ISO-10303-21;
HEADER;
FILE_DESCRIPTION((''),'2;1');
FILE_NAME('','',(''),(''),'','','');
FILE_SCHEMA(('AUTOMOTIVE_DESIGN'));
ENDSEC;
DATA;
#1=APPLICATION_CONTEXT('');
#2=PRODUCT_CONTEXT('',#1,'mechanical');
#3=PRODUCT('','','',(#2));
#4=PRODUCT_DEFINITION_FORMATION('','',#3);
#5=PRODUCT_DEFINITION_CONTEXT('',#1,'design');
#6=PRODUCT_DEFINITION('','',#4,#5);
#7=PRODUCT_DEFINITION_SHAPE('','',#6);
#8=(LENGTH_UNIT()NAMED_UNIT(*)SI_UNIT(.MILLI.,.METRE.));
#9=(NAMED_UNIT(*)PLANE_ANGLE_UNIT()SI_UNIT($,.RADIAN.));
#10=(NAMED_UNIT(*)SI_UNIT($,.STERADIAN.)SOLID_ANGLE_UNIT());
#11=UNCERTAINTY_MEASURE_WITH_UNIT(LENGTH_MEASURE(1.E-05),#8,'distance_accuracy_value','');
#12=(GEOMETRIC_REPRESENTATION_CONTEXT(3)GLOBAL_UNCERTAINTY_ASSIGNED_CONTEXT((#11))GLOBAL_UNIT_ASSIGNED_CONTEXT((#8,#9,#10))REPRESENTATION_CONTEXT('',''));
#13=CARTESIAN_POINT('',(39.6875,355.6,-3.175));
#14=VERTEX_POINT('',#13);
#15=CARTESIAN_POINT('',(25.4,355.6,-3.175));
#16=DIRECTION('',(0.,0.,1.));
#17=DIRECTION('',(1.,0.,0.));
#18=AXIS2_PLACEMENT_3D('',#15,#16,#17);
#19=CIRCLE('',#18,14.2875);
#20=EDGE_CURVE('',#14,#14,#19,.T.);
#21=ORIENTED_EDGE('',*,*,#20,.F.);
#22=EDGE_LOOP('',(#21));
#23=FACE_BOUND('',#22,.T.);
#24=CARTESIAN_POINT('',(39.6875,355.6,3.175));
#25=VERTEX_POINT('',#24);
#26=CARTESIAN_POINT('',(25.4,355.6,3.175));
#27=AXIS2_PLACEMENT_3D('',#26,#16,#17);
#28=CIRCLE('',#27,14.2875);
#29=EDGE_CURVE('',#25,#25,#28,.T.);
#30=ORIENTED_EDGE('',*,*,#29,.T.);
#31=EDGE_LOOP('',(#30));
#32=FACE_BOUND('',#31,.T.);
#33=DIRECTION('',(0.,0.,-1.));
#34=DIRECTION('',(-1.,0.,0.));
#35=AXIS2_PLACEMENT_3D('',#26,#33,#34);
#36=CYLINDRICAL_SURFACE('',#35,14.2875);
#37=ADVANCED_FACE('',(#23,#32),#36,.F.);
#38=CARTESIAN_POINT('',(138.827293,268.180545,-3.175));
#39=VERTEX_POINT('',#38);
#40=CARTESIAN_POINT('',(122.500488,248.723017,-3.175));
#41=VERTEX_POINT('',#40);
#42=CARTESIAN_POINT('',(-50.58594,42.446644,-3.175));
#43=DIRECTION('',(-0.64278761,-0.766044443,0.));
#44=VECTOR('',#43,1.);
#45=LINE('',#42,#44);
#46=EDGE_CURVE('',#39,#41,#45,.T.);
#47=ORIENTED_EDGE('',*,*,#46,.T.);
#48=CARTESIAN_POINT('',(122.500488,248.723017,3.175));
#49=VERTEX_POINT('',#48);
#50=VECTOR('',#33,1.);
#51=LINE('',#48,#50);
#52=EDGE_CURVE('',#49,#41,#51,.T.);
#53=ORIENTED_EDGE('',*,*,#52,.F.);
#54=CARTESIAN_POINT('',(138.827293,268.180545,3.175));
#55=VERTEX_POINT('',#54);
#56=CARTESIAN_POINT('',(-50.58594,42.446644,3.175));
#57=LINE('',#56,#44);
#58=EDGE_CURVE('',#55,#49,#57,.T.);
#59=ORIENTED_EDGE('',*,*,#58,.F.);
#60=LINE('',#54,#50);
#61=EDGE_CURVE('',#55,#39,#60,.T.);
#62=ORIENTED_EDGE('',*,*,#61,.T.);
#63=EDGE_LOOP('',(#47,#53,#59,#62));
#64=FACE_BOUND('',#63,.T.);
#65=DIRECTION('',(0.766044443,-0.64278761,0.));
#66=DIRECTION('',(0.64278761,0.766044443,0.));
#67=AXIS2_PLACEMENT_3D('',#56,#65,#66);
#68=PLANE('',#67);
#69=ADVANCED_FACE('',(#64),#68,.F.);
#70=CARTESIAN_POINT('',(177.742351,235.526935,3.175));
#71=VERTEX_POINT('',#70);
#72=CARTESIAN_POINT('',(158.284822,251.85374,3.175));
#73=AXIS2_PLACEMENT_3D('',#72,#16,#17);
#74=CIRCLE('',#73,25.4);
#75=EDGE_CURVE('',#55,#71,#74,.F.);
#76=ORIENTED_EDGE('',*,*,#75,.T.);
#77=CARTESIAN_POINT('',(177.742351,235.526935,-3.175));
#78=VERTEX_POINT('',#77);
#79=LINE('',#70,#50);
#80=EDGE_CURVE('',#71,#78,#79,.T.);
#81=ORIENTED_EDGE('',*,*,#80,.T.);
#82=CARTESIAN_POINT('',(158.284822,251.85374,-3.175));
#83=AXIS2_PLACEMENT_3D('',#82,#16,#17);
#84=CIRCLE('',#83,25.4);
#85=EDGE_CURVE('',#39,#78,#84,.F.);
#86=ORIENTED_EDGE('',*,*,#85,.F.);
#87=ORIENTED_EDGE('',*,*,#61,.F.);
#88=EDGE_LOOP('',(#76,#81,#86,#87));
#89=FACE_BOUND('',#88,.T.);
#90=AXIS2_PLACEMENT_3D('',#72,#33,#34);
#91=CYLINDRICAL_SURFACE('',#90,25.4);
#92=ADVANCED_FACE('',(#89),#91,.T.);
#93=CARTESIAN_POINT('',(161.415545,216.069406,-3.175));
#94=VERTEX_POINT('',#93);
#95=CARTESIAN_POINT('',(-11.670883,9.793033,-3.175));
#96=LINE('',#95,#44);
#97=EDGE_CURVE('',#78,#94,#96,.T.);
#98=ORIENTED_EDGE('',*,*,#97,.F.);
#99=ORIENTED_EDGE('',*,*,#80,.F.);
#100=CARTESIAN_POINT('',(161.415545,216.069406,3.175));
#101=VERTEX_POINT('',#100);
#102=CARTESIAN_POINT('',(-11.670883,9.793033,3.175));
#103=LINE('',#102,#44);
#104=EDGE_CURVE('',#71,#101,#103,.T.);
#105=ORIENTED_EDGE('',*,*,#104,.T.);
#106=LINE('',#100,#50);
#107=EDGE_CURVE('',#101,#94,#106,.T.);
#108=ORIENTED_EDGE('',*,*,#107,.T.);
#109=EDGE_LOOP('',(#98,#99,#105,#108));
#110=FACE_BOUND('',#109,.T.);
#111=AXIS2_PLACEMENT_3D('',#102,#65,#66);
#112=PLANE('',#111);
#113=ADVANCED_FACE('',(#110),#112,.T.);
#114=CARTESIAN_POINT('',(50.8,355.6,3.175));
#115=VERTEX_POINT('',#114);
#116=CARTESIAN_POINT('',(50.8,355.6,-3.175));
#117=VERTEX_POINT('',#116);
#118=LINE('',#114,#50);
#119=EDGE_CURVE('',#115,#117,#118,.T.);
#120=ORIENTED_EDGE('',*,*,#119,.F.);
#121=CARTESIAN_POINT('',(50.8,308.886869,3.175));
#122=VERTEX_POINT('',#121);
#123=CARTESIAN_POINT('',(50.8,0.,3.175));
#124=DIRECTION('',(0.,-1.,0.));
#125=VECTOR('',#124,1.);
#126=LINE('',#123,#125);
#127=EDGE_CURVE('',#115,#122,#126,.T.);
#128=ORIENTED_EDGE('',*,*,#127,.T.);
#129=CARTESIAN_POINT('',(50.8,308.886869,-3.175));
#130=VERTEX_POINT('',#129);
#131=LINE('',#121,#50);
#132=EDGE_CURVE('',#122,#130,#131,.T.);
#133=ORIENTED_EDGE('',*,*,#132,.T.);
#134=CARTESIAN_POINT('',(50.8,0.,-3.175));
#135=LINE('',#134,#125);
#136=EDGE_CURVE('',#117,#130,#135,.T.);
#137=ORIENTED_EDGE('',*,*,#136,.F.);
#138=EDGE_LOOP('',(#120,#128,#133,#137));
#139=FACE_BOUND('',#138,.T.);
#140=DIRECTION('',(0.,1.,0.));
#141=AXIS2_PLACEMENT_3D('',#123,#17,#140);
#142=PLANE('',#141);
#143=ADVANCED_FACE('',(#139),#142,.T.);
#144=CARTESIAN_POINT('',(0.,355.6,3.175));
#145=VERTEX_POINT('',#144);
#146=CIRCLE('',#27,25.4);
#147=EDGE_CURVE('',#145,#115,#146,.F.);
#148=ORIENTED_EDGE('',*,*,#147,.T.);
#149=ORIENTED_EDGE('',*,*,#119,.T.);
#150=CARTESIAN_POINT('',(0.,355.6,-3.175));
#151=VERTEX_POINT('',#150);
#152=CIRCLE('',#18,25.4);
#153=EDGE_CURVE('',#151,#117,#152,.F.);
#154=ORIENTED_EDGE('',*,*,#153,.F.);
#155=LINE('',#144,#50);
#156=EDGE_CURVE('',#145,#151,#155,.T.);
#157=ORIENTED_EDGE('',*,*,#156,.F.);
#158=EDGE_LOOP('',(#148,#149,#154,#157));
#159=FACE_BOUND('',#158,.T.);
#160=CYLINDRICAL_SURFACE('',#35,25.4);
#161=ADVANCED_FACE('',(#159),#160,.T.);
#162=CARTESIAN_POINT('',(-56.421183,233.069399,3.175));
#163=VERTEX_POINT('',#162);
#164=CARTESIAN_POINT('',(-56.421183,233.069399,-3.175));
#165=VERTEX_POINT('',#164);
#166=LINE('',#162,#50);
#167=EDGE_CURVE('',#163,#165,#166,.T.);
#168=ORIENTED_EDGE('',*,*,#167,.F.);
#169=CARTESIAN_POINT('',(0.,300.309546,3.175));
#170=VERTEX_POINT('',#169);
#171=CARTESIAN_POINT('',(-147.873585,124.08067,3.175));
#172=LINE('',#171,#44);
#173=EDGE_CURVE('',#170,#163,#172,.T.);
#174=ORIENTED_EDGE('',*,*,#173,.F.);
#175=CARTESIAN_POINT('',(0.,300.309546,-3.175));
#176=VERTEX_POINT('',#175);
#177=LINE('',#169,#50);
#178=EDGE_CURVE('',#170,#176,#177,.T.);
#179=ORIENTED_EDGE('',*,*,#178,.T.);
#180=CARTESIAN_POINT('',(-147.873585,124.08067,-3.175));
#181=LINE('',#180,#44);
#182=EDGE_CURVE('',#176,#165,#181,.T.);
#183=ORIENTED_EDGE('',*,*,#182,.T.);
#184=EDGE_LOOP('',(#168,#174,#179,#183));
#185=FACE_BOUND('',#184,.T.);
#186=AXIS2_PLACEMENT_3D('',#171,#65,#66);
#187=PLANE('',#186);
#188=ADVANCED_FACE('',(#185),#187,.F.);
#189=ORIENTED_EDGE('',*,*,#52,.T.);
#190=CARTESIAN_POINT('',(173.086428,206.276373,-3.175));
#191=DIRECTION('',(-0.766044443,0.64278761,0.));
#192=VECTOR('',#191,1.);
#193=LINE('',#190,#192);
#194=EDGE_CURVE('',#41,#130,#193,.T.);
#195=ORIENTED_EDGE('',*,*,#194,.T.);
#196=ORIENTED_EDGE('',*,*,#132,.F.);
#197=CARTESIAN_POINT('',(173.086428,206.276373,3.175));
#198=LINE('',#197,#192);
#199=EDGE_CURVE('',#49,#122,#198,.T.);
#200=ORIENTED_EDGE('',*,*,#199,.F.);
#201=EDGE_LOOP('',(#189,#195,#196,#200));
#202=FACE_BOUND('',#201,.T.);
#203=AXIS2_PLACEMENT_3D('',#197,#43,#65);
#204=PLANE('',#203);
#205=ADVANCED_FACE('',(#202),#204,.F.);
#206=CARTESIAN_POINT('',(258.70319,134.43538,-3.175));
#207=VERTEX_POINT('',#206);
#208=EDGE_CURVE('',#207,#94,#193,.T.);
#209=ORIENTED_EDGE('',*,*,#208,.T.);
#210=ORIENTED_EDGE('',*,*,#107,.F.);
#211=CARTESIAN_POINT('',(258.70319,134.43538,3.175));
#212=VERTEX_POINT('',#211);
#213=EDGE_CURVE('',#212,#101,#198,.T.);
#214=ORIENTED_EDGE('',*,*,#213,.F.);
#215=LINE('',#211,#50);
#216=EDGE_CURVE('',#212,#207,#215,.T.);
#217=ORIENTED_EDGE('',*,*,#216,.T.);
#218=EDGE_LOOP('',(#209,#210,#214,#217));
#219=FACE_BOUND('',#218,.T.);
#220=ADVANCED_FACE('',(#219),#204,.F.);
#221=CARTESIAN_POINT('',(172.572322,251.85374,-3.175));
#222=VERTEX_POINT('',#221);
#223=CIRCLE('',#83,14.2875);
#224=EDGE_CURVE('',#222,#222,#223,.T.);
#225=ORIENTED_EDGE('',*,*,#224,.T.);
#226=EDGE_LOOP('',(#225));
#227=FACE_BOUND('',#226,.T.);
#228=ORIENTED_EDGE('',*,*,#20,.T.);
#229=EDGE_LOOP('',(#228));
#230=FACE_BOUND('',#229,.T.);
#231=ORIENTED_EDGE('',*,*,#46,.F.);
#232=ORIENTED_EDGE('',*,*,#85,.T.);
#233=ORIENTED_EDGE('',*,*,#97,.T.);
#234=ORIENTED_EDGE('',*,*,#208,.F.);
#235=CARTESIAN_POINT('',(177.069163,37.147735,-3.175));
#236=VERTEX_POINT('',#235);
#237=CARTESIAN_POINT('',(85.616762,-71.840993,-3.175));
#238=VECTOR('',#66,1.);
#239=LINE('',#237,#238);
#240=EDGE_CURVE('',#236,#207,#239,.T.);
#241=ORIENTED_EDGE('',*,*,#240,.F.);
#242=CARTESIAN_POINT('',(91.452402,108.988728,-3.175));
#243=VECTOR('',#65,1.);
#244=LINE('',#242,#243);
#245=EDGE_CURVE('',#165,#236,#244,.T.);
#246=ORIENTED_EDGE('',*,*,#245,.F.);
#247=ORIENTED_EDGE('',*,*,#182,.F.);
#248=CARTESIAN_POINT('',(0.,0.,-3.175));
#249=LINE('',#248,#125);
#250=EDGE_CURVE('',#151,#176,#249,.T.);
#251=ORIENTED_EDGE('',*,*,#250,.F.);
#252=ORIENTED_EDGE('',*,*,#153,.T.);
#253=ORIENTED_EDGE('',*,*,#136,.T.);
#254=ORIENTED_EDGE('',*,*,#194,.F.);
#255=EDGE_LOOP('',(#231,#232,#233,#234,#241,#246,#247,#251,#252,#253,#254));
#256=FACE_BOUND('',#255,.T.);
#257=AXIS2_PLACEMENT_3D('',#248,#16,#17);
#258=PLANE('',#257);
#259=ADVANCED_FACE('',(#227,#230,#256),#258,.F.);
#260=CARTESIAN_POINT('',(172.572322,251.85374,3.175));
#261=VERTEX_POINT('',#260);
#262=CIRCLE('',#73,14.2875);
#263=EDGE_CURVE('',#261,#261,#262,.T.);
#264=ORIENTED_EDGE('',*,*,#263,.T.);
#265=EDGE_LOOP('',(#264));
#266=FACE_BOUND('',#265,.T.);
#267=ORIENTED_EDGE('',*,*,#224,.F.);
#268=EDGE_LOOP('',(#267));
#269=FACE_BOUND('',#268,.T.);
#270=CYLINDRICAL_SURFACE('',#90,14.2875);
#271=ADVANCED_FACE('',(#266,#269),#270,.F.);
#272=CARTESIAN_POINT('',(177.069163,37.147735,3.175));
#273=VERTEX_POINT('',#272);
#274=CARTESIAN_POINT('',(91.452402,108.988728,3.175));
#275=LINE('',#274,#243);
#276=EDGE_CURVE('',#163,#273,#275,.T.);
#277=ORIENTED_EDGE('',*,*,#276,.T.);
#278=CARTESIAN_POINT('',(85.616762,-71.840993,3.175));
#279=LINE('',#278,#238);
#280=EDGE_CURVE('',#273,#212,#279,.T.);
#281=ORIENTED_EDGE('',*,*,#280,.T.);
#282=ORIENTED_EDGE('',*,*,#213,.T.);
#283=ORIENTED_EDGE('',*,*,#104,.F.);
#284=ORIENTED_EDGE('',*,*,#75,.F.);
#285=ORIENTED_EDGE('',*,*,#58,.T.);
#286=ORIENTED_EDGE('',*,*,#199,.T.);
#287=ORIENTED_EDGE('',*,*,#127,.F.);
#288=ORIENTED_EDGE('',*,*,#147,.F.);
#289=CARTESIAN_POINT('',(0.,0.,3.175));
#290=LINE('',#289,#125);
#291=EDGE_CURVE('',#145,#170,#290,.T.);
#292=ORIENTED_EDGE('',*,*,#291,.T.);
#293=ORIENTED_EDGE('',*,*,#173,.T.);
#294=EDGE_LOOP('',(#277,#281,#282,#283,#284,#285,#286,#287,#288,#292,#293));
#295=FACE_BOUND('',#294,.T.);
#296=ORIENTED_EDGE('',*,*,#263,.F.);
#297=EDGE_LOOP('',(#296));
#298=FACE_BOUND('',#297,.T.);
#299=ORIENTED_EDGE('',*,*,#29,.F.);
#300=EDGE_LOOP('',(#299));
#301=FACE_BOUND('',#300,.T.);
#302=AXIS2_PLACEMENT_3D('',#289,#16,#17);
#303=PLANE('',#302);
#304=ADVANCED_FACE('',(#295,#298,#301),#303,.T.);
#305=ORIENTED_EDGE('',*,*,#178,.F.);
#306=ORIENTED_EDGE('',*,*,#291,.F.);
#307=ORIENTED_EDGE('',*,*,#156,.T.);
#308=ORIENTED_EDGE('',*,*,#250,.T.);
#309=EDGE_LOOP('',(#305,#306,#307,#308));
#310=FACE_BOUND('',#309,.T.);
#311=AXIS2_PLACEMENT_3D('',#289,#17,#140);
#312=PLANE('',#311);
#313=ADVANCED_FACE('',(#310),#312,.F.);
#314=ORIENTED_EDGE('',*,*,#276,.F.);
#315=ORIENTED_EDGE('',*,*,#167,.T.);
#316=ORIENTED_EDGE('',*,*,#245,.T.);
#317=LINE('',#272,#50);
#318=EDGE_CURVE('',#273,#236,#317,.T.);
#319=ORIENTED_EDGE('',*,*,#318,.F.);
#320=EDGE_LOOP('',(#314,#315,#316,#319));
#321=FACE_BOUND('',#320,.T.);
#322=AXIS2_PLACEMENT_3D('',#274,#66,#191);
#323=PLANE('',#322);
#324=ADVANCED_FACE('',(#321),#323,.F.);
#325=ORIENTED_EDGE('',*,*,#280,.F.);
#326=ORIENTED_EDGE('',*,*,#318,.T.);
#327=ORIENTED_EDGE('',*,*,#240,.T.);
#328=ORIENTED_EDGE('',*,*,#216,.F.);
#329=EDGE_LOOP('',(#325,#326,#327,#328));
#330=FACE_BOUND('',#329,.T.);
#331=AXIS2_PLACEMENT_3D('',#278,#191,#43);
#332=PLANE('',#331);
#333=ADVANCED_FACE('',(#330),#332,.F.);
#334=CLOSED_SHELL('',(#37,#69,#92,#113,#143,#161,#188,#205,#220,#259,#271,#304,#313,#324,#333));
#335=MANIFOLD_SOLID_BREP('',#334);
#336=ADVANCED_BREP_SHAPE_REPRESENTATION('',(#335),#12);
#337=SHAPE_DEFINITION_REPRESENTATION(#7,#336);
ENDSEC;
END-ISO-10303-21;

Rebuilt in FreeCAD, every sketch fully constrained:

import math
import FreeCAD as App
import Part
import Sketcher
from FreeCAD import Vector
Q = App.Units.Quantity

doc = App.newDocument("Part")
body = doc.addObject("PartDesign::Body", "Body")

sketch1 = body.newObject("Sketcher::SketchObject", "Sketch")
sketch1.AttachmentSupport = (doc.getObject("XY_Plane"), [""])
sketch1.MapMode = "FlatFace"
sketch1.addGeometry([
    Part.LineSegment(Vector(-56, 233, 0), Vector(177, 37, 0)),
    Part.LineSegment(Vector(177, 37, 0), Vector(259, 134, 0)),
    Part.LineSegment(Vector(259, 134, 0), Vector(161, 216, 0)),
    Part.LineSegment(Vector(161, 216, 0), Vector(178, 236, 0)),
    Part.ArcOfCircle(Part.Circle(Vector(158, 252, 0), Vector(0, 0, 1), 25), math.radians(-40), math.radians(140)),
    Part.LineSegment(Vector(139, 268, 0), Vector(123, 249, 0)),
    Part.LineSegment(Vector(123, 249, 0), Vector(51, 309, 0)),
    Part.LineSegment(Vector(51, 309, 0), Vector(51, 356, 0)),
    Part.ArcOfCircle(Part.Circle(Vector(25, 356, 0), Vector(0, 0, 1), 25), math.radians(0), math.radians(180)),
    Part.LineSegment(Vector(0, 356, 0), Vector(0, 300, 0)),
    Part.LineSegment(Vector(0, 300, 0), Vector(-56, 233, 0)),
    Part.Circle(Vector(158, 252, 0), Vector(0, 0, 1), 14),
    Part.Circle(Vector(25, 356, 0), Vector(0, 0, 1), 14),
], False)
sketch1.addConstraint([
    Sketcher.Constraint("Coincident", 0, 2, 1, 1),
    Sketcher.Constraint("Coincident", 1, 2, 2, 1),
    Sketcher.Constraint("Coincident", 2, 2, 3, 1),
    Sketcher.Constraint("Tangent", 3, 2, 4, 1),
    Sketcher.Constraint("Tangent", 4, 2, 5, 1),
    Sketcher.Constraint("Coincident", 5, 2, 6, 1),
    Sketcher.Constraint("Coincident", 6, 2, 7, 1),
    Sketcher.Constraint("Tangent", 7, 2, 8, 1),
    Sketcher.Constraint("Tangent", 8, 2, 9, 1),
    Sketcher.Constraint("Coincident", 9, 2, 10, 1),
    Sketcher.Constraint("Coincident", 10, 2, 0, 1),
    Sketcher.Constraint("Vertical", 7),
    Sketcher.Constraint("Vertical", 9),
    Sketcher.Constraint("Coincident", 11, 3, 4, 3),
    Sketcher.Constraint("Coincident", 12, 3, 8, 3),
    Sketcher.Constraint("Equal", 4, 8),
    Sketcher.Constraint("Equal", 11, 12),
    Sketcher.Constraint("PointOnObject", 8, 2, -2),
    Sketcher.Constraint("Perpendicular", 0, 1),
    Sketcher.Constraint("Perpendicular", 1, 2),
    Sketcher.Constraint("Perpendicular", 2, 3),
    Sketcher.Constraint("Parallel", 3, 5),
    Sketcher.Constraint("Perpendicular", 5, 6),
    Sketcher.Constraint("Perpendicular", 6, 10),
    Sketcher.Constraint("Equal", 1, 2),
    Sketcher.Constraint("Equal", 3, 5),
    Sketcher.Constraint("Radius", 4, Q("1 in")),
    Sketcher.Constraint("Distance", 0, Q("12 in")),
    Sketcher.Constraint("Distance", 1, Q("5 in")),
    Sketcher.Constraint("Distance", 3, Q("1 in")),
    Sketcher.Constraint("Diameter", 11, Q("1.125 in")),
    Sketcher.Constraint("DistanceY", -1, 1, 8, 3, Q("14 in")),
    Sketcher.Constraint("Angle", 0, Q("-40 deg")),
    Sketcher.Constraint("DistanceY", 7, 1, 7, 2, 46.713131),
    Sketcher.Constraint("DistanceY", -1, 1, 10, 2, 233.069399),
])
pad1 = body.newObject("PartDesign::Pad", "Pad")
pad1.Profile = sketch1
pad1.Length = Q("0.25 in")
pad1.Midplane = True

doc.recompute()
